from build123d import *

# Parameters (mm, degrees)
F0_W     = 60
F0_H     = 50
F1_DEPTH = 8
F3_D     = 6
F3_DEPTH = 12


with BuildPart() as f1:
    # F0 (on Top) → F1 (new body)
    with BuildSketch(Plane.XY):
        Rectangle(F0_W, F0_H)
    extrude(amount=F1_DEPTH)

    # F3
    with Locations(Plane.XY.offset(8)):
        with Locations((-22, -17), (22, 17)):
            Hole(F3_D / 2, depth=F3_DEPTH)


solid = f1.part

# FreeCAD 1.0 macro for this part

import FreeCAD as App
import Part
import Sketcher

V = App.Vector

doc = App.newDocument("Part")
body = doc.addObject("PartDesign::Body", "Body")

sketch1 = body.newObject("Sketcher::SketchObject", "Sketch")
sketch1.AttachmentSupport = (doc.getObject("XY_Plane"), [""])
sketch1.MapMode = "FlatFace"
sketch1.addGeometry([
    Part.LineSegment(V(-30, 25, 0), V(-30, -25, 0)),
    Part.LineSegment(V(-30, -25, 0), V(30, -25, 0)),
    Part.LineSegment(V(30, -25, 0), V(30, 25, 0)),
    Part.LineSegment(V(30, 25, 0), V(-30, 25, 0)),
], False)
sketch1.addConstraint([
    Sketcher.Constraint("Coincident", 0, 2, 1, 1),
    Sketcher.Constraint("Coincident", 1, 2, 2, 1),
    Sketcher.Constraint("Coincident", 2, 2, 3, 1),
    Sketcher.Constraint("Coincident", 3, 2, 0, 1),
    Sketcher.Constraint("Vertical", 0),
    Sketcher.Constraint("Horizontal", 1),
    Sketcher.Constraint("Vertical", 2),
    Sketcher.Constraint("Horizontal", 3),
    Sketcher.Constraint("Symmetric", 0, 2, 2, 2, -1, 1),
    Sketcher.Constraint("DistanceX", 1, 1, 1, 2, 60.0),
    Sketcher.Constraint("DistanceY", 0, 2, 0, 1, 50.0),
])
pad1 = body.newObject("PartDesign::Pad", "Pad")
pad1.Profile = sketch1
pad1.Length = 8

sketch2 = body.newObject("Sketcher::SketchObject", "Sketch001")
sketch2.AttachmentSupport = (doc.getObject("XY_Plane"), [""])
sketch2.MapMode = "FlatFace"
sketch2.AttachmentOffset = App.Placement(V(0, 0, 8), App.Rotation())
sketch2.addGeometry([
    Part.Circle(V(-22, -17, 0), V(0, 0, 1), 3),
    Part.Circle(V(22, 17, 0), V(0, 0, 1), 3),
], False)
sketch2.addConstraint([
    Sketcher.Constraint("Equal", 0, 1),
    Sketcher.Constraint("Symmetric", 0, 3, 1, 3, -1, 1),
    Sketcher.Constraint("Diameter", 0, 6.0),
    Sketcher.Constraint("DistanceX", 0, 3, -1, 1, 22.0),
    Sketcher.Constraint("DistanceY", 0, 3, -1, 1, 17.0),
])
doc.recompute()
hole = body.newObject("PartDesign::Hole", "Hole")
hole.Profile = sketch2
hole.ThreadType = "None"
hole.Diameter = 6
hole.DepthType = "Dimension"
hole.Depth = 12
hole.DrillPoint = "Flat"

doc.recompute()
